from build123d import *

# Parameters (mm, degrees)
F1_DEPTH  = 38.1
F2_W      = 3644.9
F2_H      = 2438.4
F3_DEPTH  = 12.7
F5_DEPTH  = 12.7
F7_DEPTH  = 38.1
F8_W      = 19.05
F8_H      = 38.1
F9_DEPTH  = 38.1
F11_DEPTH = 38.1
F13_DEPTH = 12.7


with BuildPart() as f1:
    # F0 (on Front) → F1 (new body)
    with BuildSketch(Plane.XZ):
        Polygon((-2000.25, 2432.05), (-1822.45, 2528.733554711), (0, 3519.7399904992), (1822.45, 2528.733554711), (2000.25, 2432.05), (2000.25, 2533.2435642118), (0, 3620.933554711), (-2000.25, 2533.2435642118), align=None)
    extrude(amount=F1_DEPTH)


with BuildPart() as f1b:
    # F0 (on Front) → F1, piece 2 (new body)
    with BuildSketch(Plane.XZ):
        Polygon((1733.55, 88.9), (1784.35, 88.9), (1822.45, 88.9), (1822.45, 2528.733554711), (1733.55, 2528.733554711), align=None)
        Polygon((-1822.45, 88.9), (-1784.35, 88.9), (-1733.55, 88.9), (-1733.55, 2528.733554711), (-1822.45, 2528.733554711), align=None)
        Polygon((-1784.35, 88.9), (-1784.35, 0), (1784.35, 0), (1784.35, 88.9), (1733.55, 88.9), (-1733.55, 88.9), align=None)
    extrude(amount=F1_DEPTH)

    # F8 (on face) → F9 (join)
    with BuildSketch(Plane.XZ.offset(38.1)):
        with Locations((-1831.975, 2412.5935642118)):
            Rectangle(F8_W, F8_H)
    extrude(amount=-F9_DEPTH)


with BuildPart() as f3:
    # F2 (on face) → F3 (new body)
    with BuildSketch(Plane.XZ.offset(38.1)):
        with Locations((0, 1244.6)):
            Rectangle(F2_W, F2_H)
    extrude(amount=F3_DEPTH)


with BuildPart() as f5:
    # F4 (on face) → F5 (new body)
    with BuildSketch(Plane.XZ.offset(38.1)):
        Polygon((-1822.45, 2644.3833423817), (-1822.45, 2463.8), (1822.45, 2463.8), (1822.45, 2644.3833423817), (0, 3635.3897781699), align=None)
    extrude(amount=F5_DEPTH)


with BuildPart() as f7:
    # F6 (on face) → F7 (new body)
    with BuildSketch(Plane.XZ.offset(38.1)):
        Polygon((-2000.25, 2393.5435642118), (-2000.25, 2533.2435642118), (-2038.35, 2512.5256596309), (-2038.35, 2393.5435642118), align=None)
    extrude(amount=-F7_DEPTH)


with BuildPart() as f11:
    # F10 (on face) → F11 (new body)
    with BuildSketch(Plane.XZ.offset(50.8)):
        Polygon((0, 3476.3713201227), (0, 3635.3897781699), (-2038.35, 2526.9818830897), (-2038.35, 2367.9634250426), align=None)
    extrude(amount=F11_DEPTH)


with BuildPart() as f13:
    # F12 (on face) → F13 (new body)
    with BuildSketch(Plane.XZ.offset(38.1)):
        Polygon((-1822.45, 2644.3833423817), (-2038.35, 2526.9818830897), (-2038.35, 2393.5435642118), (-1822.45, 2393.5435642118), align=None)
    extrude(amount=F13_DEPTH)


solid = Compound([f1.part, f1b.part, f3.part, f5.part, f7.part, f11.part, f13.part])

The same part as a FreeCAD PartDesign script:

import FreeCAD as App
import Part
import Sketcher
Q = App.Units.Quantity

doc = App.newDocument("Part")
params = doc.addObject("Spreadsheet::Sheet", "Params")
for row, (alias, value) in enumerate([
    ("pad1_length", "1.5 in"),
    ("sketch2_width", "1.5 in"),
    ("sketch2_width2", "3.5 in"),
    ("sketch2_width3", "136.5 in"),
    ("pad2_length", "1.5 in"),
    ("sketch3_height", "1.5 in"),
    ("sketch3_width", "0.75 in"),
    ("pad3_length", "1.5 in"),
    ("sketch4_height", "96 in"),
    ("sketch4_width", "143.5 in"),
    ("pad4_length", "0.5 in"),
    ("sketch5_width", "143.5 in"),
    ("pad5_length", "0.5 in"),
    ("sketch6_width", "1.5 in"),
    ("sketch6_height", "5.5 in"),
    ("pad6_length", "1.5 in"),
    ("pad7_length", "1.5 in"),
    ("sketch8_width", "8.5 in"),
    ("pad8_length", "0.5 in"),
], start=1):
    params.set(f"A{row}", alias)
    params.set(f"B{row}", "=" + value)
    params.setAlias(f"B{row}", alias)

body = doc.addObject("PartDesign::Body", "Body")

sketch1 = body.newObject("Sketcher::SketchObject", "Sketch")
sketch1.AttachmentSupport = (doc.getObject("XZ_Plane"), [""])
sketch1.MapMode = "FlatFace"
sketch1.addGeometry([
    Part.LineSegment(App.Vector(-2000, 2432, 0), App.Vector(0, 3520, 0)),
    Part.LineSegment(App.Vector(0, 3520, 0), App.Vector(2000, 2432, 0)),
    Part.LineSegment(App.Vector(2000, 2432, 0), App.Vector(2000, 2533, 0)),
    Part.LineSegment(App.Vector(2000, 2533, 0), App.Vector(0, 3621, 0)),
    Part.LineSegment(App.Vector(0, 3621, 0), App.Vector(-2000, 2533, 0)),
    Part.LineSegment(App.Vector(-2000, 2533, 0), App.Vector(-2000, 2432, 0)),
], False)
sketch1.addConstraint([
    Sketcher.Constraint("Coincident", 0, 2, 1, 1),
    Sketcher.Constraint("Coincident", 1, 2, 2, 1),
    Sketcher.Constraint("Coincident", 2, 2, 3, 1),
    Sketcher.Constraint("Coincident", 3, 2, 4, 1),
    Sketcher.Constraint("Coincident", 4, 2, 5, 1),
    Sketcher.Constraint("Coincident", 5, 2, 0, 1),
    Sketcher.Constraint("Vertical", 2),
    Sketcher.Constraint("Vertical", 5),
    Sketcher.Constraint("Symmetric", 2, 2, 4, 2, -2),
    Sketcher.Constraint("PointOnObject", 0, 2, -2),
    Sketcher.Constraint("PointOnObject", 3, 2, -2),
    Sketcher.Constraint("Parallel", 1, 3),
    Sketcher.Constraint("Parallel", 0, 4),
    Sketcher.Constraint("DistanceX", 4, 2, 2, 2, Q("157.5 in")),
    Sketcher.Constraint("DistanceY", -1, 1, 1, 2, Q("95.75 in")),
    Sketcher.Constraint("DistanceY", 2, 1, 2, 2, 101.193564),
    Sketcher.Constraint("DistanceY", -1, 1, 0, 2, 3519.73999),
])
pad1 = body.newObject("PartDesign::Pad", "Pad")
pad1.Profile = sketch1
pad1.setExpression("Length", "Params.pad1_length")
body2 = doc.addObject("PartDesign::Body", "Body001")

sketch2 = body2.newObject("Sketcher::SketchObject", "Sketch001")
sketch2.AttachmentSupport = (doc.getObject("XZ_Plane001"), [""])
sketch2.MapMode = "FlatFace"
sketch2.addGeometry([
    Part.LineSegment(App.Vector(1784, 89, 0), App.Vector(1822, 89, 0)),
    Part.LineSegment(App.Vector(1822, 89, 0), App.Vector(1822, 2529, 0)),
    Part.LineSegment(App.Vector(1822, 2529, 0), App.Vector(1734, 2529, 0)),
    Part.LineSegment(App.Vector(1734, 2529, 0), App.Vector(1734, 89, 0)),
    Part.LineSegment(App.Vector(1734, 89, 0), App.Vector(-1734, 89, 0)),
    Part.LineSegment(App.Vector(-1734, 89, 0), App.Vector(-1734, 2529, 0)),
    Part.LineSegment(App.Vector(-1734, 2529, 0), App.Vector(-1822, 2529, 0)),
    Part.LineSegment(App.Vector(-1822, 2529, 0), App.Vector(-1822, 89, 0)),
    Part.LineSegment(App.Vector(-1822, 89, 0), App.Vector(-1784, 89, 0)),
    Part.LineSegment(App.Vector(-1784, 89, 0), App.Vector(-1784, 0, 0)),
    Part.LineSegment(App.Vector(-1784, 0, 0), App.Vector(1784, 0, 0)),
    Part.LineSegment(App.Vector(1784, 0, 0), App.Vector(1784, 89, 0)),
], False)
sketch2.addConstraint([
    Sketcher.Constraint("Coincident", 0, 2, 1, 1),
    Sketcher.Constraint("Coincident", 1, 2, 2, 1),
    Sketcher.Constraint("Coincident", 2, 2, 3, 1),
    Sketcher.Constraint("Coincident", 3, 2, 4, 1),
    Sketcher.Constraint("Coincident", 4, 2, 5, 1),
    Sketcher.Constraint("Coincident", 5, 2, 6, 1),
    Sketcher.Constraint("Coincident", 6, 2, 7, 1),
    Sketcher.Constraint("Coincident", 7, 2, 8, 1),
    Sketcher.Constraint("Coincident", 8, 2, 9, 1),
    Sketcher.Constraint("Coincident", 9, 2, 10, 1),
    Sketcher.Constraint("Coincident", 10, 2, 11, 1),
    Sketcher.Constraint("Coincident", 11, 2, 0, 1),
    Sketcher.Constraint("Horizontal", 0),
    Sketcher.Constraint("Vertical", 1),
    Sketcher.Constraint("Horizontal", 2),
    Sketcher.Constraint("Vertical", 3),
    Sketcher.Constraint("Horizontal", 4),
    Sketcher.Constraint("Vertical", 5),
    Sketcher.Constraint("Horizontal", 6),
    Sketcher.Constraint("Vertical", 7),
    Sketcher.Constraint("Horizontal", 8),
    Sketcher.Constraint("Vertical", 9),
    Sketcher.Constraint("Horizontal", 10),
    Sketcher.Constraint("Vertical", 11),
    Sketcher.Constraint("Symmetric", 9, 2, 10, 2, -1, 1),
    Sketcher.Constraint("Symmetric", 2, 2, 5, 2, -2),
    Sketcher.Constraint("Symmetric", 0, 2, 7, 2, -2),
    Sketcher.Constraint("Horizontal", 0, 2, 3, 2),
    Sketcher.Constraint("Equal", 6, 9),
    Sketcher.Constraint("DistanceX", 0, 1, 0, 2, Q("1.5 in")),
    Sketcher.Constraint("DistanceX", 2, 2, 2, 1, Q("3.5 in")),
    Sketcher.Constraint("DistanceX", 4, 2, 4, 1, Q("136.5 in")),
    Sketcher.Constraint("DistanceY", 1, 1, 1, 2, 2439.833555),
])
sketch2.setExpression("Constraints[29]", "Params.sketch2_width")
sketch2.setExpression("Constraints[30]", "Params.sketch2_width2")
sketch2.setExpression("Constraints[31]", "Params.sketch2_width3")
pad2 = body2.newObject("PartDesign::Pad", "Pad001")
pad2.Profile = sketch2
pad2.setExpression("Length", "Params.pad2_length")

sketch3 = body2.newObject("Sketcher::SketchObject", "Sketch002")
sketch3.AttachmentSupport = (doc.getObject("XZ_Plane001"), [""])
sketch3.MapMode = "FlatFace"
sketch3.AttachmentOffset = App.Placement(App.Vector(0, 0, 1.5 * 25.4), App.Rotation())
sketch3.addGeometry([
    Part.LineSegment(App.Vector(-1842, 2432, 0), App.Vector(-1842, 2394, 0)),
    Part.LineSegment(App.Vector(-1842, 2394, 0), App.Vector(-1822, 2394, 0)),
    Part.LineSegment(App.Vector(-1822, 2394, 0), App.Vector(-1822, 2432, 0)),
    Part.LineSegment(App.Vector(-1822, 2432, 0), App.Vector(-1842, 2432, 0)),
], False)
sketch3.addConstraint([
    Sketcher.Constraint("Coincident", 0, 2, 1, 1),
    Sketcher.Constraint("Coincident", 1, 2, 2, 1),
    Sketcher.Constraint("Coincident", 2, 2, 3, 1),
    Sketcher.Constraint("Coincident", 3, 2, 0, 1),
    Sketcher.Constraint("Vertical", 0),
    Sketcher.Constraint("Horizontal", 1),
    Sketcher.Constraint("Vertical", 2),
    Sketcher.Constraint("Horizontal", 3),
    Sketcher.Constraint("DistanceY", 0, 2, 0, 1, Q("1.5 in")),
    Sketcher.Constraint("DistanceX", 1, 1, 1, 2, Q("0.75 in")),
    Sketcher.Constraint("DistanceX", 0, 2, -1, 1, Q("72.5 in")),
    Sketcher.Constraint("DistanceY", -1, 1, 0, 2, 2393.543564),
])
sketch3.setExpression("Constraints[8]", "Params.sketch3_height")
sketch3.setExpression("Constraints[9]", "Params.sketch3_width")
pad3 = body2.newObject("PartDesign::Pad", "Pad002")
pad3.Profile = sketch3
pad3.setExpression("Length", "Params.pad3_length")
pad3.Reversed = True
body3 = doc.addObject("PartDesign::Body", "Body002")

sketch4 = body3.newObject("Sketcher::SketchObject", "Sketch003")
sketch4.AttachmentSupport = (doc.getObject("XZ_Plane002"), [""])
sketch4.MapMode = "FlatFace"
sketch4.AttachmentOffset = App.Placement(App.Vector(0, 0, 1.5 * 25.4), App.Rotation())
sketch4.addGeometry([
    Part.LineSegment(App.Vector(-1822, 2464, 0), App.Vector(-1822, 25, 0)),
    Part.LineSegment(App.Vector(-1822, 25, 0), App.Vector(1822, 25, 0)),
    Part.LineSegment(App.Vector(1822, 25, 0), App.Vector(1822, 2464, 0)),
    Part.LineSegment(App.Vector(1822, 2464, 0), App.Vector(-1822, 2464, 0)),
], False)
sketch4.addConstraint([
    Sketcher.Constraint("Coincident", 0, 2, 1, 1),
    Sketcher.Constraint("Coincident", 1, 2, 2, 1),
    Sketcher.Constraint("Coincident", 2, 2, 3, 1),
    Sketcher.Constraint("Coincident", 3, 2, 0, 1),
    Sketcher.Constraint("Vertical", 0),
    Sketcher.Constraint("Horizontal", 1),
    Sketcher.Constraint("Vertical", 2),
    Sketcher.Constraint("Horizontal", 3),
    Sketcher.Constraint("DistanceY", 0, 2, 0, 1, Q("96 in")),
    Sketcher.Constraint("DistanceX", 1, 1, 1, 2, Q("143.5 in")),
    Sketcher.Constraint("DistanceY", -1, 1, 0, 2, Q("1 in")),
    Sketcher.Constraint("DistanceX", 0, 2, -1, 1, Q("71.75 in")),
])
sketch4.setExpression("Constraints[8]", "Params.sketch4_height")
sketch4.setExpression("Constraints[9]", "Params.sketch4_width")
pad4 = body3.newObject("PartDesign::Pad", "Pad003")
pad4.Profile = sketch4
pad4.setExpression("Length", "Params.pad4_length")
body4 = doc.addObject("PartDesign::Body", "Body003")

sketch5 = body4.newObject("Sketcher::SketchObject", "Sketch004")
sketch5.AttachmentSupport = (doc.getObject("XZ_Plane003"), [""])
sketch5.MapMode = "FlatFace"
sketch5.AttachmentOffset = App.Placement(App.Vector(0, 0, 1.5 * 25.4), App.Rotation())
sketch5.addGeometry([
    Part.LineSegment(App.Vector(-1822, 2644, 0), App.Vector(-1822, 2464, 0)),
    Part.LineSegment(App.Vector(-1822, 2464, 0), App.Vector(1822, 2464, 0)),
    Part.LineSegment(App.Vector(1822, 2464, 0), App.Vector(1822, 2644, 0)),
    Part.LineSegment(App.Vector(1822, 2644, 0), App.Vector(0, 3635, 0)),
    Part.LineSegment(App.Vector(0, 3635, 0), App.Vector(-1822, 2644, 0)),
], False)
sketch5.addConstraint([
    Sketcher.Constraint("Coincident", 0, 2, 1, 1),
    Sketcher.Constraint("Coincident", 1, 2, 2, 1),
    Sketcher.Constraint("Coincident", 2, 2, 3, 1),
    Sketcher.Constraint("Coincident", 3, 2, 4, 1),
    Sketcher.Constraint("Coincident", 4, 2, 0, 1),
    Sketcher.Constraint("Vertical", 0),
    Sketcher.Constraint("Horizontal", 1),
    Sketcher.Constraint("Vertical", 2),
    Sketcher.Constraint("Symmetric", 2, 2, 4, 2, -2),
    Sketcher.Constraint("PointOnObject", 3, 2, -2),
    Sketcher.Constraint("DistanceX", 1, 1, 1, 2, Q("143.5 in")),
    Sketcher.Constraint("DistanceY", -1, 1, 0, 2, Q("97 in")),
    Sketcher.Constraint("DistanceY", 0, 2, 0, 1, 180.583342),
    Sketcher.Constraint("DistanceY", -1, 1, 3, 2, 3635.389778),
])
sketch5.setExpression("Constraints[10]", "Params.sketch5_width")
pad5 = body4.newObject("PartDesign::Pad", "Pad004")
pad5.Profile = sketch5
pad5.setExpression("Length", "Params.pad5_length")
body5 = doc.addObject("PartDesign::Body", "Body004")

sketch6 = body5.newObject("Sketcher::SketchObject", "Sketch005")
sketch6.AttachmentSupport = (doc.getObject("XZ_Plane004"), [""])
sketch6.MapMode = "FlatFace"
sketch6.AttachmentOffset = App.Placement(App.Vector(0, 0, 1.5 * 25.4), App.Rotation())
sketch6.addGeometry([
    Part.LineSegment(App.Vector(-2000, 2394, 0), App.Vector(-2000, 2533, 0)),
    Part.LineSegment(App.Vector(-2000, 2533, 0), App.Vector(-2038, 2513, 0)),
    Part.LineSegment(App.Vector(-2038, 2513, 0), App.Vector(-2038, 2394, 0)),
    Part.LineSegment(App.Vector(-2038, 2394, 0), App.Vector(-2000, 2394, 0)),
], False)
sketch6.addConstraint([
    Sketcher.Constraint("Coincident", 0, 2, 1, 1),
    Sketcher.Constraint("Coincident", 1, 2, 2, 1),
    Sketcher.Constraint("Coincident", 2, 2, 3, 1),
    Sketcher.Constraint("Coincident", 3, 2, 0, 1),
    Sketcher.Constraint("Vertical", 0),
    Sketcher.Constraint("Vertical", 2),
    Sketcher.Constraint("Horizontal", 3),
    Sketcher.Constraint("DistanceX", 3, 1, 3, 2, Q("1.5 in")),
    Sketcher.Constraint("DistanceY", 0, 1, 0, 2, Q("5.5 in")),
    Sketcher.Constraint("DistanceX", 0, 2, -1, 1, Q("78.75 in")),
    Sketcher.Constraint("Distance", 1, 43.36867),
    Sketcher.Constraint("DistanceY", -1, 1, 1, 2, 2512.52566),
])
sketch6.setExpression("Constraints[7]", "Params.sketch6_width")
sketch6.setExpression("Constraints[8]", "Params.sketch6_height")
pad6 = body5.newObject("PartDesign::Pad", "Pad005")
pad6.Profile = sketch6
pad6.setExpression("Length", "Params.pad6_length")
pad6.Reversed = True
body6 = doc.addObject("PartDesign::Body", "Body005")

sketch7 = body6.newObject("Sketcher::SketchObject", "Sketch006")
sketch7.AttachmentSupport = (doc.getObject("XZ_Plane005"), [""])
sketch7.MapMode = "FlatFace"
sketch7.AttachmentOffset = App.Placement(App.Vector(0, 0, 2 * 25.4), App.Rotation())
sketch7.addGeometry([
    Part.LineSegment(App.Vector(0, 3476, 0), App.Vector(0, 3635, 0)),
    Part.LineSegment(App.Vector(0, 3635, 0), App.Vector(-2038, 2527, 0)),
    Part.LineSegment(App.Vector(-2038, 2527, 0), App.Vector(-2038, 2368, 0)),
    Part.LineSegment(App.Vector(-2038, 2368, 0), App.Vector(0, 3476, 0)),
], False)
sketch7.addConstraint([
    Sketcher.Constraint("Coincident", 0, 2, 1, 1),
    Sketcher.Constraint("Coincident", 1, 2, 2, 1),
    Sketcher.Constraint("Coincident", 2, 2, 3, 1),
    Sketcher.Constraint("Coincident", 3, 2, 0, 1),
    Sketcher.Constraint("Vertical", 0),
    Sketcher.Constraint("Vertical", 2),
    Sketcher.Constraint("PointOnObject", 0, 2, -2),
    Sketcher.Constraint("Parallel", 1, 3),
    Sketcher.Constraint("DistanceX", 1, 2, -1, 1, Q("80.25 in")),
    Sketcher.Constraint("DistanceY", 0, 1, 0, 2, 159.018458),
    Sketcher.Constraint("DistanceY", -1, 1, 0, 2, 3635.389778),
    Sketcher.Constraint("Distance", 1, 2320.223865),
])
pad7 = body6.newObject("PartDesign::Pad", "Pad006")
pad7.Profile = sketch7
pad7.setExpression("Length", "Params.pad7_length")
body7 = doc.addObject("PartDesign::Body", "Body006")

sketch8 = body7.newObject("Sketcher::SketchObject", "Sketch007")
sketch8.AttachmentSupport = (doc.getObject("XZ_Plane006"), [""])
sketch8.MapMode = "FlatFace"
sketch8.AttachmentOffset = App.Placement(App.Vector(0, 0, 1.5 * 25.4), App.Rotation())
sketch8.addGeometry([
    Part.LineSegment(App.Vector(-1822, 2644, 0), App.Vector(-2038, 2527, 0)),
    Part.LineSegment(App.Vector(-2038, 2527, 0), App.Vector(-2038, 2394, 0)),
    Part.LineSegment(App.Vector(-2038, 2394, 0), App.Vector(-1822, 2394, 0)),
    Part.LineSegment(App.Vector(-1822, 2394, 0), App.Vector(-1822, 2644, 0)),
], False)
sketch8.addConstraint([
    Sketcher.Constraint("Coincident", 0, 2, 1, 1),
    Sketcher.Constraint("Coincident", 1, 2, 2, 1),
    Sketcher.Constraint("Coincident", 2, 2, 3, 1),
    Sketcher.Constraint("Coincident", 3, 2, 0, 1),
    Sketcher.Constraint("Vertical", 1),
    Sketcher.Constraint("Horizontal", 2),
    Sketcher.Constraint("Vertical", 3),
    Sketcher.Constraint("DistanceX", 2, 1, 2, 2, Q("8.5 in")),
    Sketcher.Constraint("DistanceX", 0, 2, -1, 1, Q("80.25 in")),
    Sketcher.Constraint("Distance", 0, 245.755799),
    Sketcher.Constraint("DistanceY", 1, 2, 1, 1, 133.438319),
    Sketcher.Constraint("DistanceY", -1, 1, 0, 2, 2526.981883),
])
sketch8.setExpression("Constraints[7]", "Params.sketch8_width")
pad8 = body7.newObject("PartDesign::Pad", "Pad007")
pad8.Profile = sketch8
pad8.setExpression("Length", "Params.pad8_length")

doc.recompute()
